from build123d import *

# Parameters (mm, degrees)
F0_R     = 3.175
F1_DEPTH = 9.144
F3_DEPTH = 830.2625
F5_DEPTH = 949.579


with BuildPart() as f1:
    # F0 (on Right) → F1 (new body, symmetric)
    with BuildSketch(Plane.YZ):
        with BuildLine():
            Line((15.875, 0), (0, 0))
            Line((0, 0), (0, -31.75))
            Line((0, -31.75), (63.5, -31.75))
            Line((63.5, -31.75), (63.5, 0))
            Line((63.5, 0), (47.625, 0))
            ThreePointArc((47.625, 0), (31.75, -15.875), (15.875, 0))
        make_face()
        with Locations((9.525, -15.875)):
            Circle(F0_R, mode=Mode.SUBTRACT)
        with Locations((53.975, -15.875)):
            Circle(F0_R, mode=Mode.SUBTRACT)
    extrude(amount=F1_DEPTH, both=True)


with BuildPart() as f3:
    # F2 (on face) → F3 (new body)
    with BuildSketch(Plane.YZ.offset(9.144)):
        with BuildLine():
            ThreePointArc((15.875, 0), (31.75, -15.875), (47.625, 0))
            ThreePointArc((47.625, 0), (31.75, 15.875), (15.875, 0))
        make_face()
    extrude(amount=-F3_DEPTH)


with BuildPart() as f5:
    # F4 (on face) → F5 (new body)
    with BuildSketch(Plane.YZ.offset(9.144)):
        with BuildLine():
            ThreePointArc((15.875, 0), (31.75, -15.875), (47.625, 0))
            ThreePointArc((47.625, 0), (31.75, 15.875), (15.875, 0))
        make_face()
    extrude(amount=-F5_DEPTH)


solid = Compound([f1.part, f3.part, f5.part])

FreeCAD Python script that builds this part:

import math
import FreeCAD as App
import Part
import Sketcher
from FreeCAD import Vector
Q = App.Units.Quantity

doc = App.newDocument("Part")
body = doc.addObject("PartDesign::Body", "Body")

sketch1 = doc.addObject("Sketcher::SketchObject", "Sketch")
body.addObject(sketch1)
sketch1.AttachmentSupport = (doc.YZ_Plane, [""])
sketch1.MapMode = "FlatFace"
sketch1.addGeometry(Part.LineSegment(Vector(15.9, 0, 0), Vector(0, 0, 0)), False)
sketch1.addGeometry(Part.LineSegment(Vector(0, 0, 0), Vector(0, -31.8, 0)), False)
sketch1.addGeometry(Part.LineSegment(Vector(0, -31.8, 0), Vector(63.5, -31.8, 0)), False)
sketch1.addGeometry(Part.LineSegment(Vector(63.5, -31.8, 0), Vector(63.5, 0, 0)), False)
sketch1.addGeometry(Part.LineSegment(Vector(63.5, 0, 0), Vector(47.6, 0, 0)), False)
sketch1.addGeometry(Part.ArcOfCircle(Part.Circle(Vector(31.8, 0, 0), Vector(0, 0, 1), 15.9), math.radians(180), math.radians(360)), False)
sketch1.addGeometry(Part.Circle(Vector(9.5, -15.9, 0), Vector(0, 0, 1), 3.2), False)
sketch1.addGeometry(Part.Circle(Vector(54, -15.9, 0), Vector(0, 0, 1), 3.2), False)
sketch1.addConstraint(Sketcher.Constraint("Coincident", 0, 2, 1, 1))
sketch1.addConstraint(Sketcher.Constraint("Coincident", 1, 2, 2, 1))
sketch1.addConstraint(Sketcher.Constraint("Coincident", 2, 2, 3, 1))
sketch1.addConstraint(Sketcher.Constraint("Coincident", 3, 2, 4, 1))
sketch1.addConstraint(Sketcher.Constraint("Coincident", 4, 2, 5, 2))
sketch1.addConstraint(Sketcher.Constraint("Coincident", 5, 1, 0, 1))
sketch1.addConstraint(Sketcher.Constraint("Horizontal", 0))
sketch1.addConstraint(Sketcher.Constraint("Vertical", 1))
sketch1.addConstraint(Sketcher.Constraint("Horizontal", 2))
sketch1.addConstraint(Sketcher.Constraint("Vertical", 3))
sketch1.addConstraint(Sketcher.Constraint("Horizontal", 4))
sketch1.addConstraint(Sketcher.Constraint("Coincident", 0, 2, -1, 1))
sketch1.addConstraint(Sketcher.Constraint("Equal", 6, 7))
sketch1.addConstraint(Sketcher.Constraint("PointOnObject", 5, 3, -1))
sketch1.addConstraint(Sketcher.Constraint("PointOnObject", 3, 2, -1))
sketch1.addConstraint(Sketcher.Constraint("Horizontal", 6, 3, 7, 3))
sketch1.addConstraint(Sketcher.Constraint("Equal", 0, 4))
sketch1.addConstraint(Sketcher.Constraint("Diameter", 6, Q("0.25 in")))
sketch1.addConstraint(Sketcher.Constraint("DistanceX", 2, 1, 2, 2, Q("2.5 in")))
sketch1.addConstraint(Sketcher.Constraint("Radius", 5, Q("0.625 in")))
sketch1.addConstraint(Sketcher.Constraint("DistanceY", 1, 2, 1, 1, Q("1.25 in")))
sketch1.addConstraint(Sketcher.Constraint("DistanceX", 6, 3, 4, 2, Q("1.5 in")))
sketch1.addConstraint(Sketcher.Constraint("DistanceX", 6, 3, 7, 3, Q("1.75 in")))
sketch1.addConstraint(Sketcher.Constraint("DistanceY", 6, 3, -1, 1, Q("0.625 in")))
pad1 = doc.addObject("PartDesign::Pad", "Pad")
body.addObject(pad1)
pad1.Profile = sketch1
pad1.Length = Q("0.72 in")
pad1.Midplane = True
body2 = doc.addObject("PartDesign::Body", "Body001")

sketch2 = doc.addObject("Sketcher::SketchObject", "Sketch001")
body2.addObject(sketch2)
sketch2.AttachmentSupport = (doc.getObject("YZ_Plane001"), [""])
sketch2.MapMode = "FlatFace"
sketch2.AttachmentOffset = App.Placement(Vector(0, 0, 0.36 * 25.4), App.Rotation())
sketch2.addGeometry(Part.Circle(Vector(32, 0, 0), Vector(0, 0, 1), 16), False)
sketch2.addConstraint(Sketcher.Constraint("PointOnObject", 0, 3, -1))
sketch2.addConstraint(Sketcher.Constraint("Diameter", 0, Q("1.25 in")))
sketch2.addConstraint(Sketcher.Constraint("DistanceX", -1, 1, 0, 3, Q("1.25 in")))
pad2 = doc.addObject("PartDesign::Pad", "Pad001")
body2.addObject(pad2)
pad2.Profile = sketch2
pad2.Length = Q("32.6875 in")
pad2.Reversed = True
body3 = doc.addObject("PartDesign::Body", "Body002")

sketch3 = doc.addObject("Sketcher::SketchObject", "Sketch002")
body3.addObject(sketch3)
sketch3.AttachmentSupport = (doc.getObject("YZ_Plane002"), [""])
sketch3.MapMode = "FlatFace"
sketch3.AttachmentOffset = App.Placement(Vector(0, 0, 0.36 * 25.4), App.Rotation())
sketch3.addGeometry(Part.Circle(Vector(32, 0, 0), Vector(0, 0, 1), 16), False)
sketch3.addConstraint(Sketcher.Constraint("PointOnObject", 0, 3, -1))
sketch3.addConstraint(Sketcher.Constraint("Diameter", 0, Q("1.25 in")))
sketch3.addConstraint(Sketcher.Constraint("DistanceX", -1, 1, 0, 3, Q("1.25 in")))
pad3 = doc.addObject("PartDesign::Pad", "Pad002")
body3.addObject(pad3)
pad3.Profile = sketch3
pad3.Length = Q("37.385 in")
pad3.Reversed = True

doc.recompute()
